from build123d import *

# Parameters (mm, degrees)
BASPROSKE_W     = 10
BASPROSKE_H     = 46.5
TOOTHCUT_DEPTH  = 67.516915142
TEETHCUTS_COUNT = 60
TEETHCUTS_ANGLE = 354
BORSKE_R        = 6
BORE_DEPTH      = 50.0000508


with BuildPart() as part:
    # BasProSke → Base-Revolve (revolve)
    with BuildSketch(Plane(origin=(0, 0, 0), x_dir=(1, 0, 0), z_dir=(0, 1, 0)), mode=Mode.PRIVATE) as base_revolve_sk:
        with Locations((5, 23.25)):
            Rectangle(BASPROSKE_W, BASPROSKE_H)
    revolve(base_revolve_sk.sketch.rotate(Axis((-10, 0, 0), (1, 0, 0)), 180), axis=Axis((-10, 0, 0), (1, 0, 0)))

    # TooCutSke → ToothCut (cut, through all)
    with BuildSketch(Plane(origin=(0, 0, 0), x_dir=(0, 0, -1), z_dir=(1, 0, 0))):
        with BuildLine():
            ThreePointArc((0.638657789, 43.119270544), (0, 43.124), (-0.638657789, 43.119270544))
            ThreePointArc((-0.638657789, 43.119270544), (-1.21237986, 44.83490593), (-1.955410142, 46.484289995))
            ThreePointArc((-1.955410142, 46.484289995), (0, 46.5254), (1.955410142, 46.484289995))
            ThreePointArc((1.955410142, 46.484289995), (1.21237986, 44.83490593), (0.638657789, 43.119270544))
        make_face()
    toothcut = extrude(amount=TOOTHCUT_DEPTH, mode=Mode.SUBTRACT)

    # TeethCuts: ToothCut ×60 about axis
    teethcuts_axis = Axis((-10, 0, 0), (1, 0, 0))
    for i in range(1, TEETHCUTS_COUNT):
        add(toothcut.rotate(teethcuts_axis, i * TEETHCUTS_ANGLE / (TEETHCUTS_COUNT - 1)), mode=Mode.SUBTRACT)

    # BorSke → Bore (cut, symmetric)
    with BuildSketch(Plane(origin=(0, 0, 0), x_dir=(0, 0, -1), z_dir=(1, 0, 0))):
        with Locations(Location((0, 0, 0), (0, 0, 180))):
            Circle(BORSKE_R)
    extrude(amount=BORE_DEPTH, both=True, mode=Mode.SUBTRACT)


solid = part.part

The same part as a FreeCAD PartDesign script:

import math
import FreeCAD as App
import Part
import Sketcher
Q = App.Units.Quantity

doc = App.newDocument("Part")
body = doc.addObject("PartDesign::Body", "Body")

sketch1 = body.newObject("Sketcher::SketchObject", "Sketch")
sketch1.AttachmentSupport = (doc.getObject("XZ_Plane"), [""])
sketch1.MapMode = "FlatFace"
sketch1.addGeometry([
    Part.LineSegment(App.Vector(0, -46.5, 0), App.Vector(0, 0, 0)),
    Part.LineSegment(App.Vector(0, 0, 0), App.Vector(10, 0, 0)),
    Part.LineSegment(App.Vector(10, 0, 0), App.Vector(10, -46.5, 0)),
    Part.LineSegment(App.Vector(10, -46.5, 0), App.Vector(0, -46.5, 0)),
], False)
sketch1.addConstraint([
    Sketcher.Constraint("Coincident", 0, 2, 1, 1),
    Sketcher.Constraint("Coincident", 1, 2, 2, 1),
    Sketcher.Constraint("Coincident", 2, 2, 3, 1),
    Sketcher.Constraint("Coincident", 3, 2, 0, 1),
    Sketcher.Constraint("Vertical", 0),
    Sketcher.Constraint("Horizontal", 1),
    Sketcher.Constraint("Vertical", 2),
    Sketcher.Constraint("Horizontal", 3),
    Sketcher.Constraint("Coincident", 0, 2, -1, 1),
    Sketcher.Constraint("DistanceX", 1, 1, 1, 2, Q("10 mm")),
    Sketcher.Constraint("DistanceY", 0, 1, 0, 2, Q("46.5 mm")),
])
revolution = body.newObject("PartDesign::Revolution", "Revolution")
revolution.Profile = sketch1
revolution.ReferenceAxis = (sketch1, ["H_Axis"])
revolution.Angle = 360

sketch2 = body.newObject("Sketcher::SketchObject", "Sketch001")
sketch2.AttachmentSupport = (doc.getObject("YZ_Plane"), [""])
sketch2.MapMode = "FlatFace"
sketch2.addGeometry([
    Part.ArcOfCircle(Part.Circle(App.Vector(-0.000002, 0, 0), App.Vector(0, 0, 1), 43.124002), math.radians(-0.84857), math.radians(0.84857)),
    Part.ArcOfCircle(Part.Circle(App.Vector(38.275693, -17.974741, 0), App.Vector(0, 0, 1), 18), math.radians(62.868572), math.radians(74.390018)),
    Part.ArcOfCircle(Part.Circle(App.Vector(0, 0, 0), App.Vector(0, 0, 1), 46.5254), math.radians(-2.408787), math.radians(2.408787)),
    Part.ArcOfCircle(Part.Circle(App.Vector(38.275693, 17.974741, 0), App.Vector(0, 0, 1), 18), math.radians(-74.390018), math.radians(-62.868572)),
], False)
sketch2.addConstraint([
    Sketcher.Constraint("Coincident", 0, 1, 1, 2),
    Sketcher.Constraint("Coincident", 1, 1, 2, 1),
    Sketcher.Constraint("Coincident", 2, 2, 3, 2),
    Sketcher.Constraint("Coincident", 3, 1, 0, 2),
    Sketcher.Constraint("Coincident", 0, 3, -1, 1),
    Sketcher.Constraint("Coincident", 2, 3, -1, 1),
    Sketcher.Constraint("Equal", 1, 3),
    Sketcher.Constraint("Symmetric", 1, 3, 3, 3, -1),
    Sketcher.Constraint("Radius", 1, Q("18 mm")),
    Sketcher.Constraint("Radius", 0, Q("43.124002 mm")),
    Sketcher.Constraint("Radius", 2, Q("46.5254 mm")),
    Sketcher.Constraint("DistanceY", 0, 1, 3, 3, Q("18.613398 mm")),
    Sketcher.Constraint("DistanceY", 1, 3, -1, 1, Q("17.974741 mm")),
])
pocket1 = body.newObject("PartDesign::Pocket", "Pocket")
pocket1.Profile = sketch2
pocket1.Type = "ThroughAll"
pocket1.Reversed = True
doc.recompute()

polarpattern = body.newObject("PartDesign::PolarPattern", "PolarPattern")
polarpattern.Originals = [pocket1]
polarpattern.Axis = (doc.getObject("X_Axis"), [""])
polarpattern.Angle = 360
polarpattern.Occurrences = 60
body.Tip = polarpattern

sketch3 = body.newObject("Sketcher::SketchObject", "Sketch002")
sketch3.AttachmentSupport = (doc.getObject("YZ_Plane"), [""])
sketch3.MapMode = "FlatFace"
sketch3.addGeometry(Part.Circle(App.Vector(0, 0, 0), App.Vector(0, 0, 1), 6), False)
sketch3.addConstraint([
    Sketcher.Constraint("Coincident", 0, 3, -1, 1),
    Sketcher.Constraint("Diameter", 0, Q("12 mm")),
])
pocket2 = body.newObject("PartDesign::Pocket", "Pocket001")
pocket2.Profile = sketch3
pocket2.Length = 100.000102
pocket2.Midplane = True

doc.recompute()
